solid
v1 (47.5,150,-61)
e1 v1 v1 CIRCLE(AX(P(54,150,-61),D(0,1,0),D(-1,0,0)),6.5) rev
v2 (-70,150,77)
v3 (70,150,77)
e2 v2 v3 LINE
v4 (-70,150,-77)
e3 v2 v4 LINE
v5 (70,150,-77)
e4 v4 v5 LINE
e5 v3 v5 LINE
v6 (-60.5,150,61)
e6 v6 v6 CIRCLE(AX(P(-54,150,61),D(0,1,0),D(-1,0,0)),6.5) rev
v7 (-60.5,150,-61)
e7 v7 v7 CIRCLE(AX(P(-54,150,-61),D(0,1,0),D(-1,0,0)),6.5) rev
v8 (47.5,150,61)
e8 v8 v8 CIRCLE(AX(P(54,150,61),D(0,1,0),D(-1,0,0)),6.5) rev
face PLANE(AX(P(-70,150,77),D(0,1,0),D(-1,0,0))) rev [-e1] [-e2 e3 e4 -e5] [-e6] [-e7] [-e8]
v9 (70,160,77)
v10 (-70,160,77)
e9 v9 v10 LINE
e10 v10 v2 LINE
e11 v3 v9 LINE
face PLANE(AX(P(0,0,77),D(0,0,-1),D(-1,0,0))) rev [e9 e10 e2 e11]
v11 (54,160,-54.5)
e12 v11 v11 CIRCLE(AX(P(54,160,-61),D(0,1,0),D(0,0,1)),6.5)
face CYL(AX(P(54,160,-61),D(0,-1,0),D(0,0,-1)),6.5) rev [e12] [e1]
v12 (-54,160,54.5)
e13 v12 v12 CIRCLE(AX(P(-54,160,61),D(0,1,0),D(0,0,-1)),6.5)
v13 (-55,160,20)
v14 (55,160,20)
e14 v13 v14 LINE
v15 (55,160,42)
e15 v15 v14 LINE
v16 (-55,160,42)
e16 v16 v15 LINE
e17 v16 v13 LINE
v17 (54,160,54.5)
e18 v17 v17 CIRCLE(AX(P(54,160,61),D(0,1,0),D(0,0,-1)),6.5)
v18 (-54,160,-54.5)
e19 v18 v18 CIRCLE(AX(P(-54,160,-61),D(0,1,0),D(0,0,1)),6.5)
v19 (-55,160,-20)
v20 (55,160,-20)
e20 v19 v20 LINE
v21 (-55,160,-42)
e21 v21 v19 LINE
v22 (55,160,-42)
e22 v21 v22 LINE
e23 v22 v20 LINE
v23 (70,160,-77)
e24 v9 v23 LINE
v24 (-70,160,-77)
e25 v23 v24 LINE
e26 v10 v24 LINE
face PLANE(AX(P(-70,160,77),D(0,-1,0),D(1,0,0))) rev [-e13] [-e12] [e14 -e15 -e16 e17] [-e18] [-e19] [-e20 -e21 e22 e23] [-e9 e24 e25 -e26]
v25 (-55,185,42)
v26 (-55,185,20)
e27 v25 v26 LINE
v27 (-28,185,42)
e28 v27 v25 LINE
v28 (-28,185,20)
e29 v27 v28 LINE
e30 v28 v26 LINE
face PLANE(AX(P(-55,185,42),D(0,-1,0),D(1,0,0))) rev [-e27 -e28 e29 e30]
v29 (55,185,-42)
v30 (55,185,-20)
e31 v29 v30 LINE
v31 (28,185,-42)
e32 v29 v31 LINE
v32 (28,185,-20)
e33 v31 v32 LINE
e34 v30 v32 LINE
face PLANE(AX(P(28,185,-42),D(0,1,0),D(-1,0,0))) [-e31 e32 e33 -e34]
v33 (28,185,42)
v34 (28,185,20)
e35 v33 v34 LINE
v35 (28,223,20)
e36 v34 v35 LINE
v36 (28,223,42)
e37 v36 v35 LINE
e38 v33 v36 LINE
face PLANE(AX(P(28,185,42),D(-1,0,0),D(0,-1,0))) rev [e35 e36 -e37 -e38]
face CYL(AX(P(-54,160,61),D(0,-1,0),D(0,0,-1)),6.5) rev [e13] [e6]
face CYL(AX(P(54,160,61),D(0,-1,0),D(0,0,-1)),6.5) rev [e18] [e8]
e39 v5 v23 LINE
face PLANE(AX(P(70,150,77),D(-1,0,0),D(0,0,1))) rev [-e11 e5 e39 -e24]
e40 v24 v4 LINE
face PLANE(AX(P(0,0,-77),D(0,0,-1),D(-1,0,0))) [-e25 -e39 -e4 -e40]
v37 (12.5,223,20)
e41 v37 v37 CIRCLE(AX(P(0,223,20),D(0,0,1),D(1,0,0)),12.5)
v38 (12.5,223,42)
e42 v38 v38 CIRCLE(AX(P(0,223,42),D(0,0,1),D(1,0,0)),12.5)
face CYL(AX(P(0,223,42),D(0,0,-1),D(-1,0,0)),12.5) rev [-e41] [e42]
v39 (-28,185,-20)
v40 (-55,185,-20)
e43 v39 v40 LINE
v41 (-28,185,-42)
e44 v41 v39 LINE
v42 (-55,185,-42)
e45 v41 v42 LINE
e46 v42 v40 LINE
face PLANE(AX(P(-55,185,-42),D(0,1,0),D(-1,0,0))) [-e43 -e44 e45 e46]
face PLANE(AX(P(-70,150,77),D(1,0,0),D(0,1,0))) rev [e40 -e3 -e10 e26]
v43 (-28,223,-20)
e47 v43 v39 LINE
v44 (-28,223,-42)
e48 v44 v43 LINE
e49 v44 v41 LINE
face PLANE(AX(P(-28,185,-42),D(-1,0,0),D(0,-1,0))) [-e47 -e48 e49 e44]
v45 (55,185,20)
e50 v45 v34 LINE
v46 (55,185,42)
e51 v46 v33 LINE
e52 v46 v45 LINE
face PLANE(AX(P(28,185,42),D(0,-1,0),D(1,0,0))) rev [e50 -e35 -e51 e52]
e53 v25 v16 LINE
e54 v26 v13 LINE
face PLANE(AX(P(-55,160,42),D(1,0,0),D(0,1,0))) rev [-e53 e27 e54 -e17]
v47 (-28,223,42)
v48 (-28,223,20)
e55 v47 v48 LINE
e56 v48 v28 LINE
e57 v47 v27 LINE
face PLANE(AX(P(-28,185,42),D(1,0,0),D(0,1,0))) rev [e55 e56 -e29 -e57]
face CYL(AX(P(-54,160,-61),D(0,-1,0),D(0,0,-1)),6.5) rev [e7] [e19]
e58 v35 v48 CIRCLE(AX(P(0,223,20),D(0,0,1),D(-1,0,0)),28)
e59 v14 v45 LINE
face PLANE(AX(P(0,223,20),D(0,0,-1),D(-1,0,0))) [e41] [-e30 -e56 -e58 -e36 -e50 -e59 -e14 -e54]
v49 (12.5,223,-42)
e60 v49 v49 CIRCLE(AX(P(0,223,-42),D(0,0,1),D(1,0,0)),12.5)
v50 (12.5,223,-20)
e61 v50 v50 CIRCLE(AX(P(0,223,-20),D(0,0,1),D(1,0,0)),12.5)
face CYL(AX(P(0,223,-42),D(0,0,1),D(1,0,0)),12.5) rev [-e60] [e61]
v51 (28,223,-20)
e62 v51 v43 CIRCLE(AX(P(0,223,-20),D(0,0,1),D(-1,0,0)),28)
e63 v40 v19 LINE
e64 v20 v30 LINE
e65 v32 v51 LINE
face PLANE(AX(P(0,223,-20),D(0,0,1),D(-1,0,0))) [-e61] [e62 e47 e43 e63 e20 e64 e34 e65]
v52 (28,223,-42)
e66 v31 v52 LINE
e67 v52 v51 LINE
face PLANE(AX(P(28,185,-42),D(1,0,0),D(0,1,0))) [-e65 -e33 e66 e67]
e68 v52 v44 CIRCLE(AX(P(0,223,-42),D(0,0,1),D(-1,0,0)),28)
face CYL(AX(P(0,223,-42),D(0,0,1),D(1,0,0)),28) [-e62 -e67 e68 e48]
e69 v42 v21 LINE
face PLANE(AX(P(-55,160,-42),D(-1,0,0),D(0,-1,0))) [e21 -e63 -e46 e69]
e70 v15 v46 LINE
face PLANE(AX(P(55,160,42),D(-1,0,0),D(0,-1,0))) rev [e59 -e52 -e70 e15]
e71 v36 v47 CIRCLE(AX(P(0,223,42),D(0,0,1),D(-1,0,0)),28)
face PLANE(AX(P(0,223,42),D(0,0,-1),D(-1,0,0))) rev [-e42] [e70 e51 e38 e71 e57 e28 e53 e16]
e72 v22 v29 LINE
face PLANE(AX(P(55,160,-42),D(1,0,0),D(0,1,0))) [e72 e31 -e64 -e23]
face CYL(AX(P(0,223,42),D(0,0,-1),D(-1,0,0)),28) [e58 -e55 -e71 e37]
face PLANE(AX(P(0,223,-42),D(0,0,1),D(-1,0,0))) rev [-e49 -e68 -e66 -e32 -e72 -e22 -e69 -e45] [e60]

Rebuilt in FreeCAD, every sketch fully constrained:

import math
import FreeCAD as App
import Part
import Sketcher
from FreeCAD import Vector
Q = App.Units.Quantity

doc = App.newDocument("Part")
body = doc.addObject("PartDesign::Body", "Body")

# Sketch on XY plane
sketch1 = doc.addObject("Sketcher::SketchObject", "Sketch")
body.addObject(sketch1)
sketch1.AttachmentSupport = (doc.XY_Plane, [""])
sketch1.MapMode = "FlatFace"
sketch1.addGeometry([
    Part.LineSegment(Vector(-70, 160, 0), Vector(-70, 150, 0)),
    Part.LineSegment(Vector(-70, 150, 0), Vector(70, 150, 0)),
    Part.LineSegment(Vector(70, 150, 0), Vector(70, 160, 0)),
    Part.LineSegment(Vector(70, 160, 0), Vector(-70, 160, 0)),
], False)
sketch1.addConstraint([
    Sketcher.Constraint("Coincident", 0, 2, 1, 1),
    Sketcher.Constraint("Coincident", 1, 2, 2, 1),
    Sketcher.Constraint("Coincident", 2, 2, 3, 1),
    Sketcher.Constraint("Coincident", 3, 2, 0, 1),
    Sketcher.Constraint("Vertical", 0),
    Sketcher.Constraint("Horizontal", 1),
    Sketcher.Constraint("Vertical", 2),
    Sketcher.Constraint("Horizontal", 3),
    Sketcher.Constraint("DistanceX", 1, 1, 1, 2, Q("140 mm")),
    Sketcher.Constraint("DistanceY", 0, 2, 0, 1, Q("10 mm")),
    Sketcher.Constraint("DistanceX", 0, 2, -1, 1, Q("70 mm")),
    Sketcher.Constraint("DistanceY", -1, 1, 0, 2, Q("150 mm")),
])
pad1 = doc.addObject("PartDesign::Pad", "Pad")
body.addObject(pad1)
pad1.Profile = sketch1
pad1.Length = 154
pad1.Midplane = True
body2 = doc.addObject("PartDesign::Body", "Body001")

# Sketch on XY plane
sketch2 = doc.addObject("Sketcher::SketchObject", "Sketch001")
body2.addObject(sketch2)
sketch2.AttachmentSupport = (doc.getObject("XY_Plane001"), [""])
sketch2.MapMode = "FlatFace"
sketch2.addGeometry([
    Part.LineSegment(Vector(-70, 0, 0), Vector(-70, -10, 0)),
    Part.LineSegment(Vector(-70, -10, 0), Vector(70, -10, 0)),
    Part.LineSegment(Vector(70, -10, 0), Vector(70, 0, 0)),
    Part.LineSegment(Vector(70, 0, 0), Vector(-70, 0, 0)),
], False)
sketch2.addConstraint([
    Sketcher.Constraint("Coincident", 0, 2, 1, 1),
    Sketcher.Constraint("Coincident", 1, 2, 2, 1),
    Sketcher.Constraint("Coincident", 2, 2, 3, 1),
    Sketcher.Constraint("Coincident", 3, 2, 0, 1),
    Sketcher.Constraint("Vertical", 0),
    Sketcher.Constraint("Horizontal", 1),
    Sketcher.Constraint("Vertical", 2),
    Sketcher.Constraint("Horizontal", 3),
    Sketcher.Constraint("Symmetric", 2, 2, 3, 2, -1, 1),
    Sketcher.Constraint("DistanceX", 1, 1, 1, 2, Q("140 mm")),
    Sketcher.Constraint("DistanceY", 0, 2, 0, 1, Q("10 mm")),
])
pad2 = doc.addObject("PartDesign::Pad", "Pad001")
body2.addObject(pad2)
pad2.Profile = sketch2
pad2.Length = 154
pad2.Midplane = True
body3 = doc.addObject("PartDesign::Body", "Body002")
body3.AllowCompound = True

# Sketch on XZ plane
sketch3 = doc.addObject("Sketcher::SketchObject", "Sketch002")
body3.addObject(sketch3)
sketch3.AttachmentSupport = (doc.getObject("XZ_Plane002"), [""])
sketch3.MapMode = "FlatFace"
sketch3.addGeometry([
    Part.Circle(Vector(54, -61, 0), Vector(0, 0, 1), 6),
    Part.Circle(Vector(-54, -61, 0), Vector(0, 0, 1), 6),
    Part.Circle(Vector(-54, 61, 0), Vector(0, 0, 1), 6),
    Part.Circle(Vector(54, 61, 0), Vector(0, 0, 1), 6),
], False)
sketch3.addConstraint([
    Sketcher.Constraint("Equal", 0, 1),
    Sketcher.Constraint("Equal", 1, 2),
    Sketcher.Constraint("Equal", 2, 3),
    Sketcher.Constraint("Symmetric", 0, 3, 2, 3, -1, 1),
    Sketcher.Constraint("Symmetric", 1, 3, 3, 3, -1, 1),
    Sketcher.Constraint("Symmetric", 0, 3, 1, 3, -2),
    Sketcher.Constraint("Diameter", 0, Q("13 mm")),
    Sketcher.Constraint("DistanceX", -1, 1, 0, 3, Q("54 mm")),
    Sketcher.Constraint("DistanceY", 0, 3, -1, 1, Q("61 mm")),
])
pad3 = doc.addObject("PartDesign::Pad", "Pad002")
body3.addObject(pad3)
pad3.Profile = sketch3
pad3.Type = "TwoLengths"
pad3.Length = 160
pad3.Length2 = 160
pad3.Reversed = True
doc.recompute()

body4 = doc.addObject("PartDesign::Body", "Body003")
body4.BaseFeature = body3
boolean = doc.addObject("PartDesign::Boolean", "Boolean")
body.addObject(boolean)
boolean.Type = "Cut"
boolean.addObjects([body4])
doc.recompute()

# Sketch on XY plane
sketch4 = doc.addObject("Sketcher::SketchObject", "Sketch003")
body.addObject(sketch4)
sketch4.AttachmentSupport = (doc.XY_Plane, [""])
sketch4.MapMode = "FlatFace"
sketch4.AttachmentOffset = App.Placement(Vector(0, 0, 20), App.Rotation())
sketch4.addGeometry([
    Part.LineSegment(Vector(55, 160, 0), Vector(55, 185, 0)),  # 0
    Part.LineSegment(Vector(55, 185, 0), Vector(28, 185, 0)),  # 1
    Part.LineSegment(Vector(28, 185, 0), Vector(28, 223, 0)),  # 2
    Part.ArcOfCircle(Part.Circle(Vector(0, 223, 0), Vector(0, 0, 1), 28), math.radians(0), math.radians(180)),  # 3
    Part.LineSegment(Vector(-28, 223, 0), Vector(-28, 185, 0)),  # 4
    Part.LineSegment(Vector(-28, 185, 0), Vector(-55, 185, 0)),  # 5
    Part.LineSegment(Vector(-55, 185, 0), Vector(-55, 160, 0)),  # 6
    Part.LineSegment(Vector(-55, 160, 0), Vector(55, 160, 0)),  # 7
    Part.Circle(Vector(0, 223, 0), Vector(0, 0, 1), 12),  # 8
], False)
sketch4.addConstraint([
    Sketcher.Constraint("Coincident", 0, 2, 1, 1),
    Sketcher.Constraint("Coincident", 1, 2, 2, 1),
    Sketcher.Constraint("Tangent", 2, 2, 3, 1),
    Sketcher.Constraint("Tangent", 3, 2, 4, 1),
    Sketcher.Constraint("Coincident", 4, 2, 5, 1),
    Sketcher.Constraint("Coincident", 5, 2, 6, 1),
    Sketcher.Constraint("Coincident", 6, 2, 7, 1),
    Sketcher.Constraint("Coincident", 7, 2, 0, 1),
    Sketcher.Constraint("Vertical", 0),
    Sketcher.Constraint("Horizontal", 1),
    Sketcher.Constraint("Vertical", 2),
    Sketcher.Constraint("Vertical", 4),
    Sketcher.Constraint("Horizontal", 5),
    Sketcher.Constraint("Vertical", 6),
    Sketcher.Constraint("Horizontal", 7),
    Sketcher.Constraint("Coincident", 8, 3, 3, 3),
    Sketcher.Constraint("Symmetric", 1, 2, 4, 2, -2),
    Sketcher.Constraint("Equal", 1, 5),
    Sketcher.Constraint("Diameter", 8, Q("25 mm")),
    Sketcher.Constraint("Radius", 3, Q("28 mm")),
    Sketcher.Constraint("DistanceX", 1, 2, 1, 1, Q("27 mm")),
    Sketcher.Constraint("DistanceY", 0, 1, 0, 2, Q("25 mm")),
    Sketcher.Constraint("DistanceY", 2, 1, 2, 2, Q("38 mm")),
    Sketcher.Constraint("DistanceY", -1, 1, 3, 3, Q("223 mm")),
])
pad4 = doc.addObject("PartDesign::Pad", "Pad003")
body.addObject(pad4)
pad4.Profile = sketch4
pad4.Length = 22
doc.recompute()

mirrored = doc.addObject("PartDesign::Mirrored", "Mirrored")
body.addObject(mirrored)
mirrored.Originals = [pad4]
mirrored.MirrorPlane = (doc.XY_Plane, [""])
body.Tip = mirrored
doc.recompute()

boolean2 = doc.addObject("PartDesign::Boolean", "Boolean001")
body2.addObject(boolean2)
boolean2.Type = "Cut"
boolean2.addObjects([body3])

# Sketch on XY plane
sketch5 = doc.addObject("Sketcher::SketchObject", "Sketch004")
body2.addObject(sketch5)
sketch5.AttachmentSupport = (doc.getObject("XY_Plane001"), [""])
sketch5.MapMode = "FlatFace"
sketch5.AttachmentOffset = App.Placement(Vector(0, 0, 20), App.Rotation())
sketch5.addGeometry([
    Part.LineSegment(Vector(-130, 50, 0), Vector(-130, -33, 0)),
    Part.LineSegment(Vector(-130, -33, 0), Vector(122, -33, 0)),
    Part.LineSegment(Vector(122, -33, 0), Vector(122, 50, 0)),
    Part.LineSegment(Vector(122, 50, 0), Vector(-130, 50, 0)),
], False)
sketch5.addConstraint([
    Sketcher.Constraint("Coincident", 0, 2, 1, 1),
    Sketcher.Constraint("Coincident", 1, 2, 2, 1),
    Sketcher.Constraint("Coincident", 2, 2, 3, 1),
    Sketcher.Constraint("Coincident", 3, 2, 0, 1),
    Sketcher.Constraint("Vertical", 0),
    Sketcher.Constraint("Horizontal", 1),
    Sketcher.Constraint("Vertical", 2),
    Sketcher.Constraint("Horizontal", 3),
    Sketcher.Constraint("DistanceX", 1, 1, 1, 2, Q("251.646804 mm")),
    Sketcher.Constraint("DistanceY", 0, 2, 0, 1, Q("83.728977 mm")),
    Sketcher.Constraint("DistanceX", -1, 1, 1, 2, Q("122.06184 mm")),
    Sketcher.Constraint("DistanceY", 0, 2, -1, 1, Q("33.473322 mm")),
])
pocket1 = doc.addObject("PartDesign::Pocket", "Pocket")
body2.addObject(pocket1)
pocket1.Profile = sketch5
pocket1.Type = "ThroughAll"
pocket1.Midplane = True

doc.recompute()
